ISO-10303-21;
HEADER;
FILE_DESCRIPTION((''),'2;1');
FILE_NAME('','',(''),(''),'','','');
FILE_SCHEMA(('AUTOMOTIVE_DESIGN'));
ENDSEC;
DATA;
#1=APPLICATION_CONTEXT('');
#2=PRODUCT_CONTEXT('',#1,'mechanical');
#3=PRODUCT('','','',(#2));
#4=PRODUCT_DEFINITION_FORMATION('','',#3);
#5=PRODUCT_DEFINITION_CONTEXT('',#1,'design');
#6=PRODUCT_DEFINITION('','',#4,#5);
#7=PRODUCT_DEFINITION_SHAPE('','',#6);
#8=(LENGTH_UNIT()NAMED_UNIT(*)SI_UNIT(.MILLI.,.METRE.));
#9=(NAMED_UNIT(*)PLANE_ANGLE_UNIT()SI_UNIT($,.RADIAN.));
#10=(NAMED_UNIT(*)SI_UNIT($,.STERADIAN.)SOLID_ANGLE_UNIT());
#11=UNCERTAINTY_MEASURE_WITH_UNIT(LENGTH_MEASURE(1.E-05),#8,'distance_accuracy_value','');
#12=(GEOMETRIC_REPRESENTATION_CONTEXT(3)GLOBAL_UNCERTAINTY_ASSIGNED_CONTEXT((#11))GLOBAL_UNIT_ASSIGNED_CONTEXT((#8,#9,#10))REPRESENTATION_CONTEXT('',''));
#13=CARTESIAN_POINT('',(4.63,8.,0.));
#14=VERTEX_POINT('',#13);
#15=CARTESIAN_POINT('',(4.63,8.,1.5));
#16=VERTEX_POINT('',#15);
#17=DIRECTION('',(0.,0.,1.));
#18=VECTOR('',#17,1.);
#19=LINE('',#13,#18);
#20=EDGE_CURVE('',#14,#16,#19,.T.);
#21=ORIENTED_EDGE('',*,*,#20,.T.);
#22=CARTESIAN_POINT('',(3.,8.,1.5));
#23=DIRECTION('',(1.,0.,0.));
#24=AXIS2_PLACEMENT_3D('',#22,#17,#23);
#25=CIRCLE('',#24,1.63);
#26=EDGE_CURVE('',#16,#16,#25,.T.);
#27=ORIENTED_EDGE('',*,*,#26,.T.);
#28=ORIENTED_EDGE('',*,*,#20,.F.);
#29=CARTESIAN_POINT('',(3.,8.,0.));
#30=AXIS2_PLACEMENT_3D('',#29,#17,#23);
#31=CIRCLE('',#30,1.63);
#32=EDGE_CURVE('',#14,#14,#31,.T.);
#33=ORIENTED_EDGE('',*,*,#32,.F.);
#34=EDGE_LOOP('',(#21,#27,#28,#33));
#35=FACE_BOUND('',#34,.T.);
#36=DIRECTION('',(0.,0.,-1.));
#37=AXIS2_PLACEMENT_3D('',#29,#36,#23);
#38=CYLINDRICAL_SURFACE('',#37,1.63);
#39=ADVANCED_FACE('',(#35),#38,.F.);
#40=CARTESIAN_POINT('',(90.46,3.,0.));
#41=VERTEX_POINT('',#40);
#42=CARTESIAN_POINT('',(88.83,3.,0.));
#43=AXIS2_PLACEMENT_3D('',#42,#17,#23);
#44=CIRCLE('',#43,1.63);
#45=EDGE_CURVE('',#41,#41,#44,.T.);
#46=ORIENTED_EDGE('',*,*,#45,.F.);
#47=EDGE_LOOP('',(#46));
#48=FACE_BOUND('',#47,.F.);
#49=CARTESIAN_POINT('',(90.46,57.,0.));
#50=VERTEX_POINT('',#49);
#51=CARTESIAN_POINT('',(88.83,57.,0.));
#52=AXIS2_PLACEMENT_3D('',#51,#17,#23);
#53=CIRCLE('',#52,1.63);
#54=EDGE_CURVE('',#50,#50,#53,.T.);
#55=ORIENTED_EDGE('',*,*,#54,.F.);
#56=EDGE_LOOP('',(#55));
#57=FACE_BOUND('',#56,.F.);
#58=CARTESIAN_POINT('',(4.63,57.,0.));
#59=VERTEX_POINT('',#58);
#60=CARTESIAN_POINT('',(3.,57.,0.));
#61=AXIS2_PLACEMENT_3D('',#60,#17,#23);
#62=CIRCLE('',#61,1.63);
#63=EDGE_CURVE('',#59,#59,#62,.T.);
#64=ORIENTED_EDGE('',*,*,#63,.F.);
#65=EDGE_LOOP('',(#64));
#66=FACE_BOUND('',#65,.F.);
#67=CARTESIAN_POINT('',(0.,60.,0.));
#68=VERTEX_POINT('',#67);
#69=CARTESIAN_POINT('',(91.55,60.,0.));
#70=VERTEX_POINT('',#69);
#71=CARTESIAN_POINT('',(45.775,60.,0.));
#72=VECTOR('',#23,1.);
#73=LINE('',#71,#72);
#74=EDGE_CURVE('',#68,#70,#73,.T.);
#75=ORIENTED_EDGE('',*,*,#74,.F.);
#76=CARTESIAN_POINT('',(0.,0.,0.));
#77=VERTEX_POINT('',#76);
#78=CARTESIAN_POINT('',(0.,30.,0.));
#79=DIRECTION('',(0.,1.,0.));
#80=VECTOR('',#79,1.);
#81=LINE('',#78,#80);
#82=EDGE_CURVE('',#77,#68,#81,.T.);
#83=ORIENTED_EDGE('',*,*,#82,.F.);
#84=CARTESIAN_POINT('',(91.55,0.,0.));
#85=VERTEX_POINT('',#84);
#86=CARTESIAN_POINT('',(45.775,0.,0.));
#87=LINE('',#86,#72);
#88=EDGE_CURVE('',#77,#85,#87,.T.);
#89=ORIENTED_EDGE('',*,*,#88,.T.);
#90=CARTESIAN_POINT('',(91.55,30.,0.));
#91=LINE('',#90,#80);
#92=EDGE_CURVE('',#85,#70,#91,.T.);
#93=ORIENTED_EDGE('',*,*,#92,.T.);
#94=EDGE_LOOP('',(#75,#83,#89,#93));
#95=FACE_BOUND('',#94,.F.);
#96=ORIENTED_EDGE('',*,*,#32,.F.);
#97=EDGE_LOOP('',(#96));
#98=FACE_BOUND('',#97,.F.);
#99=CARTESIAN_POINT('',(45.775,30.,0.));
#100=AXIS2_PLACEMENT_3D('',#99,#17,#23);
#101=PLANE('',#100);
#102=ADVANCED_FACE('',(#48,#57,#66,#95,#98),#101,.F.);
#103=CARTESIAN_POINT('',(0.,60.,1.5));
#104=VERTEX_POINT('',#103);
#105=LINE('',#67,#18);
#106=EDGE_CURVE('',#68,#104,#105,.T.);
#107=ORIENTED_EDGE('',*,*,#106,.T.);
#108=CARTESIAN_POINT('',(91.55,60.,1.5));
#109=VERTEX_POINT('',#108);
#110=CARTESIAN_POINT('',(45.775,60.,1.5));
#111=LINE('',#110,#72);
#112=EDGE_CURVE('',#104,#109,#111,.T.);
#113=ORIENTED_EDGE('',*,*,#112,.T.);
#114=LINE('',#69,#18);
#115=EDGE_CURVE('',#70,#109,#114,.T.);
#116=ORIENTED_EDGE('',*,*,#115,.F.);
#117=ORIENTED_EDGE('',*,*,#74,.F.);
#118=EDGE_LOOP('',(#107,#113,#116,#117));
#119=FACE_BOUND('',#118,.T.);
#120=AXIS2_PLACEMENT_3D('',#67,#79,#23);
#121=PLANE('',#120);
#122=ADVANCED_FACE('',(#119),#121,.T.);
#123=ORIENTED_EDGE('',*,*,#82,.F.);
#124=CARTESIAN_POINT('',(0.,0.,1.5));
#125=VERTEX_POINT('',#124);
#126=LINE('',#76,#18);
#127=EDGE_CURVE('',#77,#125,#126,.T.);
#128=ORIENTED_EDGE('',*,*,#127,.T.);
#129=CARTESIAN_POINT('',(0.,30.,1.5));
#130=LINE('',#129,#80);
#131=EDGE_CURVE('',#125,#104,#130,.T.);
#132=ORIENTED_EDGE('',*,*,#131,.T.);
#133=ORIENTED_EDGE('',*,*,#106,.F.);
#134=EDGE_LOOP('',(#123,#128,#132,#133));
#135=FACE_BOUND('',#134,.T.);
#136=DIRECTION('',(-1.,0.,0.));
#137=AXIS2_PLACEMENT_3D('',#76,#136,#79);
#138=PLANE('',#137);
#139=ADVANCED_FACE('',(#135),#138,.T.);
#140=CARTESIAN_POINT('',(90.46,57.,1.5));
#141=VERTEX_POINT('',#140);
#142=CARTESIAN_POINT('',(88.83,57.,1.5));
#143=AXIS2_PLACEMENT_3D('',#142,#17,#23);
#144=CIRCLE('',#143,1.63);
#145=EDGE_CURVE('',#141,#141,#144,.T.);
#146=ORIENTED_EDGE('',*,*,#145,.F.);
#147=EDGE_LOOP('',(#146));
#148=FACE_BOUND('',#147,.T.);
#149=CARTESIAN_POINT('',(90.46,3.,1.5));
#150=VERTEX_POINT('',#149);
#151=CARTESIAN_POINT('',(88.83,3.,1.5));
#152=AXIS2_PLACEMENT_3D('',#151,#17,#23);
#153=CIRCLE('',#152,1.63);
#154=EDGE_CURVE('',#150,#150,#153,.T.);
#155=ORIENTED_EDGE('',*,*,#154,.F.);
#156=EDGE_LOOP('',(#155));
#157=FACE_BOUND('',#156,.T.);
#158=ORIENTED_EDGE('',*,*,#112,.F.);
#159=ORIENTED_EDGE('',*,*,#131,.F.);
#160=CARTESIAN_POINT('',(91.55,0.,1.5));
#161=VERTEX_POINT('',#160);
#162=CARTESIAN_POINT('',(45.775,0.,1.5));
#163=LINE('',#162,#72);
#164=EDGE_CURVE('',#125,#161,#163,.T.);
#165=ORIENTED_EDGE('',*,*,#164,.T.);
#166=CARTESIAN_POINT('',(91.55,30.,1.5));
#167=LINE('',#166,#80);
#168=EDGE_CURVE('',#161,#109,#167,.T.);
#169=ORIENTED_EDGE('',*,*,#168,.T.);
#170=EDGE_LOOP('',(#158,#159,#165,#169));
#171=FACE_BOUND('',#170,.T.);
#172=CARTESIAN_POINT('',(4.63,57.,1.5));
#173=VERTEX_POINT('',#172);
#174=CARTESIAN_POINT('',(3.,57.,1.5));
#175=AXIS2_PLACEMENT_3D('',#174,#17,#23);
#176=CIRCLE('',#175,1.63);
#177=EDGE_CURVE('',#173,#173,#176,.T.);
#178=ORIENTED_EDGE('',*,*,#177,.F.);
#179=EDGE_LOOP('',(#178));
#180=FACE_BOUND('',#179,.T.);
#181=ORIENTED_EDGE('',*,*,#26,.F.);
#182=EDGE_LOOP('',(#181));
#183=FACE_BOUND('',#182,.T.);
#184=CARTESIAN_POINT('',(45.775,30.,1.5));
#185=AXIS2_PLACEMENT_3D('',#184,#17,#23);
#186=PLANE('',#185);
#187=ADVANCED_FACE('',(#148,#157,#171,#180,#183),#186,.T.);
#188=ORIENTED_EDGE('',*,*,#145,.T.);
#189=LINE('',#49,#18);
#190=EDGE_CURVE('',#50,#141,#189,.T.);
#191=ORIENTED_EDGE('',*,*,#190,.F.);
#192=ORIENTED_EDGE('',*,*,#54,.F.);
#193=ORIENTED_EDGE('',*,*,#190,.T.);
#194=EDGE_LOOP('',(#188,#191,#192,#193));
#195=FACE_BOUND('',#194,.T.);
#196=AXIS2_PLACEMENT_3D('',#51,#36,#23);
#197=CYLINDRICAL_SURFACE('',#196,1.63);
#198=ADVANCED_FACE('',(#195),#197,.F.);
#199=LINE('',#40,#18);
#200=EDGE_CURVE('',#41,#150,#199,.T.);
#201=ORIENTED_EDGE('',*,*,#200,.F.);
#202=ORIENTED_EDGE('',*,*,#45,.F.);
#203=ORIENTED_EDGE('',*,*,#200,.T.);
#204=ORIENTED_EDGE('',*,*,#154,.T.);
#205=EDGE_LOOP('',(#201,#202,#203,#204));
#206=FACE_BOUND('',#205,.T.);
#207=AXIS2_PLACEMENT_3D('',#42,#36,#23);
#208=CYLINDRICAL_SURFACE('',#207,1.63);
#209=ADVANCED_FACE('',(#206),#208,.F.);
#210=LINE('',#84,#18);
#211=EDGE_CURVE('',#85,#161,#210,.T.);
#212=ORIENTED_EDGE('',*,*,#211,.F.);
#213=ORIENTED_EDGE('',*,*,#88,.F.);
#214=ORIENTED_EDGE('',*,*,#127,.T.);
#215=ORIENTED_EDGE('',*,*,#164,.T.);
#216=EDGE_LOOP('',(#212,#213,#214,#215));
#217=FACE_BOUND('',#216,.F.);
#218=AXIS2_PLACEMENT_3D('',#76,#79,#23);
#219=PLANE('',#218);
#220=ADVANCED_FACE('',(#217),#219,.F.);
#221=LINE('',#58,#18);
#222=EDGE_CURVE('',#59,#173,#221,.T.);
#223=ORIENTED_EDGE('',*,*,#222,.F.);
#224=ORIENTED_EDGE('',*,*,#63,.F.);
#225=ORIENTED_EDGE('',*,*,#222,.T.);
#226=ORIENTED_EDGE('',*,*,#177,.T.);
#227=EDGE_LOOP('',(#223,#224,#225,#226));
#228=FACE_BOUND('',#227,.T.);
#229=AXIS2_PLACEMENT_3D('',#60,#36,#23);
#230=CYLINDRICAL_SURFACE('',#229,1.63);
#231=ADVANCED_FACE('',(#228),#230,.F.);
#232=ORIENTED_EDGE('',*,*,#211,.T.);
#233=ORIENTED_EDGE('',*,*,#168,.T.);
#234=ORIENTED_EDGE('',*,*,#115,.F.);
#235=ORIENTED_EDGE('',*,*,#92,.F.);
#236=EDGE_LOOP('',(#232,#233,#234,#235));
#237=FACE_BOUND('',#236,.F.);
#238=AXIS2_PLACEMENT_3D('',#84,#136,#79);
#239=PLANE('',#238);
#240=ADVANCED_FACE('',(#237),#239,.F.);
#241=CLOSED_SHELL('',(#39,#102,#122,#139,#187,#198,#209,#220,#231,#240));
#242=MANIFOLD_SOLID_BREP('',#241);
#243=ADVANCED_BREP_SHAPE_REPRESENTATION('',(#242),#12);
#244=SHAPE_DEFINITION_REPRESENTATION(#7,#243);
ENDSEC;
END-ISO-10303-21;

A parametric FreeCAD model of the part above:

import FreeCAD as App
import Part
import Sketcher
Q = App.Units.Quantity

doc = App.newDocument("Part")
body = doc.addObject("PartDesign::Body", "Body")

# Sketch on XY plane
sketch1 = body.newObject("Sketcher::SketchObject", "Sketch")
sketch1.AttachmentSupport = (doc.getObject("XY_Plane"), [""])
sketch1.MapMode = "FlatFace"
sketch1.addGeometry(Part.LineSegment(App.Vector(0, 60, 0), App.Vector(0, 0, 0)), False)
sketch1.addGeometry(Part.LineSegment(App.Vector(0, 0, 0), App.Vector(91.5, 0, 0)), False)
sketch1.addGeometry(Part.LineSegment(App.Vector(91.5, 0, 0), App.Vector(91.5, 60, 0)), False)
sketch1.addGeometry(Part.LineSegment(App.Vector(91.5, 60, 0), App.Vector(0, 60, 0)), False)
sketch1.addGeometry(Part.Circle(App.Vector(3, 8, 0), App.Vector(0, 0, 1), 1.6), False)
sketch1.addGeometry(Part.Circle(App.Vector(88.8, 3, 0), App.Vector(0, 0, 1), 1.6), False)
sketch1.addGeometry(Part.Circle(App.Vector(3, 57, 0), App.Vector(0, 0, 1), 1.6), False)
sketch1.addGeometry(Part.Circle(App.Vector(88.8, 57, 0), App.Vector(0, 0, 1), 1.6), False)
sketch1.addConstraint(Sketcher.Constraint("Coincident", 0, 2, 1, 1))
sketch1.addConstraint(Sketcher.Constraint("Coincident", 1, 2, 2, 1))
sketch1.addConstraint(Sketcher.Constraint("Coincident", 2, 2, 3, 1))
sketch1.addConstraint(Sketcher.Constraint("Coincident", 3, 2, 0, 1))
sketch1.addConstraint(Sketcher.Constraint("Vertical", 0))
sketch1.addConstraint(Sketcher.Constraint("Horizontal", 1))
sketch1.addConstraint(Sketcher.Constraint("Vertical", 2))
sketch1.addConstraint(Sketcher.Constraint("Horizontal", 3))
sketch1.addConstraint(Sketcher.Constraint("Coincident", 0, 2, -1, 1))
sketch1.addConstraint(Sketcher.Constraint("Equal", 4, 5))
sketch1.addConstraint(Sketcher.Constraint("Equal", 5, 6))
sketch1.addConstraint(Sketcher.Constraint("Equal", 6, 7))
sketch1.addConstraint(Sketcher.Constraint("Horizontal", 6, 3, 7, 3))
sketch1.addConstraint(Sketcher.Constraint("Vertical", 4, 3, 6, 3))
sketch1.addConstraint(Sketcher.Constraint("Vertical", 5, 3, 7, 3))
sketch1.addConstraint(Sketcher.Constraint("Diameter", 4, Q("3.26 mm")))
sketch1.addConstraint(Sketcher.Constraint("DistanceY", 0, 2, 0, 1, Q("60 mm")))
sketch1.addConstraint(Sketcher.Constraint("DistanceX", -1, 1, 4, 3, Q("3 mm")))
sketch1.addConstraint(Sketcher.Constraint("DistanceY", -1, 1, 4, 3, Q("8 mm")))
sketch1.addConstraint(Sketcher.Constraint("DistanceY", -1, 1, 5, 3, Q("3 mm")))
sketch1.addConstraint(Sketcher.Constraint("DistanceY", -1, 1, 6, 3, Q("57 mm")))
sketch1.addConstraint(Sketcher.Constraint("DistanceX", 1, 1, 1, 2, Q("91.55 mm")))
sketch1.addConstraint(Sketcher.Constraint("DistanceX", -1, 1, 5, 3, Q("88.83 mm")))
pad1 = body.newObject("PartDesign::Pad", "Pad")
pad1.Profile = sketch1
pad1.Length = 1.5

doc.recompute()
